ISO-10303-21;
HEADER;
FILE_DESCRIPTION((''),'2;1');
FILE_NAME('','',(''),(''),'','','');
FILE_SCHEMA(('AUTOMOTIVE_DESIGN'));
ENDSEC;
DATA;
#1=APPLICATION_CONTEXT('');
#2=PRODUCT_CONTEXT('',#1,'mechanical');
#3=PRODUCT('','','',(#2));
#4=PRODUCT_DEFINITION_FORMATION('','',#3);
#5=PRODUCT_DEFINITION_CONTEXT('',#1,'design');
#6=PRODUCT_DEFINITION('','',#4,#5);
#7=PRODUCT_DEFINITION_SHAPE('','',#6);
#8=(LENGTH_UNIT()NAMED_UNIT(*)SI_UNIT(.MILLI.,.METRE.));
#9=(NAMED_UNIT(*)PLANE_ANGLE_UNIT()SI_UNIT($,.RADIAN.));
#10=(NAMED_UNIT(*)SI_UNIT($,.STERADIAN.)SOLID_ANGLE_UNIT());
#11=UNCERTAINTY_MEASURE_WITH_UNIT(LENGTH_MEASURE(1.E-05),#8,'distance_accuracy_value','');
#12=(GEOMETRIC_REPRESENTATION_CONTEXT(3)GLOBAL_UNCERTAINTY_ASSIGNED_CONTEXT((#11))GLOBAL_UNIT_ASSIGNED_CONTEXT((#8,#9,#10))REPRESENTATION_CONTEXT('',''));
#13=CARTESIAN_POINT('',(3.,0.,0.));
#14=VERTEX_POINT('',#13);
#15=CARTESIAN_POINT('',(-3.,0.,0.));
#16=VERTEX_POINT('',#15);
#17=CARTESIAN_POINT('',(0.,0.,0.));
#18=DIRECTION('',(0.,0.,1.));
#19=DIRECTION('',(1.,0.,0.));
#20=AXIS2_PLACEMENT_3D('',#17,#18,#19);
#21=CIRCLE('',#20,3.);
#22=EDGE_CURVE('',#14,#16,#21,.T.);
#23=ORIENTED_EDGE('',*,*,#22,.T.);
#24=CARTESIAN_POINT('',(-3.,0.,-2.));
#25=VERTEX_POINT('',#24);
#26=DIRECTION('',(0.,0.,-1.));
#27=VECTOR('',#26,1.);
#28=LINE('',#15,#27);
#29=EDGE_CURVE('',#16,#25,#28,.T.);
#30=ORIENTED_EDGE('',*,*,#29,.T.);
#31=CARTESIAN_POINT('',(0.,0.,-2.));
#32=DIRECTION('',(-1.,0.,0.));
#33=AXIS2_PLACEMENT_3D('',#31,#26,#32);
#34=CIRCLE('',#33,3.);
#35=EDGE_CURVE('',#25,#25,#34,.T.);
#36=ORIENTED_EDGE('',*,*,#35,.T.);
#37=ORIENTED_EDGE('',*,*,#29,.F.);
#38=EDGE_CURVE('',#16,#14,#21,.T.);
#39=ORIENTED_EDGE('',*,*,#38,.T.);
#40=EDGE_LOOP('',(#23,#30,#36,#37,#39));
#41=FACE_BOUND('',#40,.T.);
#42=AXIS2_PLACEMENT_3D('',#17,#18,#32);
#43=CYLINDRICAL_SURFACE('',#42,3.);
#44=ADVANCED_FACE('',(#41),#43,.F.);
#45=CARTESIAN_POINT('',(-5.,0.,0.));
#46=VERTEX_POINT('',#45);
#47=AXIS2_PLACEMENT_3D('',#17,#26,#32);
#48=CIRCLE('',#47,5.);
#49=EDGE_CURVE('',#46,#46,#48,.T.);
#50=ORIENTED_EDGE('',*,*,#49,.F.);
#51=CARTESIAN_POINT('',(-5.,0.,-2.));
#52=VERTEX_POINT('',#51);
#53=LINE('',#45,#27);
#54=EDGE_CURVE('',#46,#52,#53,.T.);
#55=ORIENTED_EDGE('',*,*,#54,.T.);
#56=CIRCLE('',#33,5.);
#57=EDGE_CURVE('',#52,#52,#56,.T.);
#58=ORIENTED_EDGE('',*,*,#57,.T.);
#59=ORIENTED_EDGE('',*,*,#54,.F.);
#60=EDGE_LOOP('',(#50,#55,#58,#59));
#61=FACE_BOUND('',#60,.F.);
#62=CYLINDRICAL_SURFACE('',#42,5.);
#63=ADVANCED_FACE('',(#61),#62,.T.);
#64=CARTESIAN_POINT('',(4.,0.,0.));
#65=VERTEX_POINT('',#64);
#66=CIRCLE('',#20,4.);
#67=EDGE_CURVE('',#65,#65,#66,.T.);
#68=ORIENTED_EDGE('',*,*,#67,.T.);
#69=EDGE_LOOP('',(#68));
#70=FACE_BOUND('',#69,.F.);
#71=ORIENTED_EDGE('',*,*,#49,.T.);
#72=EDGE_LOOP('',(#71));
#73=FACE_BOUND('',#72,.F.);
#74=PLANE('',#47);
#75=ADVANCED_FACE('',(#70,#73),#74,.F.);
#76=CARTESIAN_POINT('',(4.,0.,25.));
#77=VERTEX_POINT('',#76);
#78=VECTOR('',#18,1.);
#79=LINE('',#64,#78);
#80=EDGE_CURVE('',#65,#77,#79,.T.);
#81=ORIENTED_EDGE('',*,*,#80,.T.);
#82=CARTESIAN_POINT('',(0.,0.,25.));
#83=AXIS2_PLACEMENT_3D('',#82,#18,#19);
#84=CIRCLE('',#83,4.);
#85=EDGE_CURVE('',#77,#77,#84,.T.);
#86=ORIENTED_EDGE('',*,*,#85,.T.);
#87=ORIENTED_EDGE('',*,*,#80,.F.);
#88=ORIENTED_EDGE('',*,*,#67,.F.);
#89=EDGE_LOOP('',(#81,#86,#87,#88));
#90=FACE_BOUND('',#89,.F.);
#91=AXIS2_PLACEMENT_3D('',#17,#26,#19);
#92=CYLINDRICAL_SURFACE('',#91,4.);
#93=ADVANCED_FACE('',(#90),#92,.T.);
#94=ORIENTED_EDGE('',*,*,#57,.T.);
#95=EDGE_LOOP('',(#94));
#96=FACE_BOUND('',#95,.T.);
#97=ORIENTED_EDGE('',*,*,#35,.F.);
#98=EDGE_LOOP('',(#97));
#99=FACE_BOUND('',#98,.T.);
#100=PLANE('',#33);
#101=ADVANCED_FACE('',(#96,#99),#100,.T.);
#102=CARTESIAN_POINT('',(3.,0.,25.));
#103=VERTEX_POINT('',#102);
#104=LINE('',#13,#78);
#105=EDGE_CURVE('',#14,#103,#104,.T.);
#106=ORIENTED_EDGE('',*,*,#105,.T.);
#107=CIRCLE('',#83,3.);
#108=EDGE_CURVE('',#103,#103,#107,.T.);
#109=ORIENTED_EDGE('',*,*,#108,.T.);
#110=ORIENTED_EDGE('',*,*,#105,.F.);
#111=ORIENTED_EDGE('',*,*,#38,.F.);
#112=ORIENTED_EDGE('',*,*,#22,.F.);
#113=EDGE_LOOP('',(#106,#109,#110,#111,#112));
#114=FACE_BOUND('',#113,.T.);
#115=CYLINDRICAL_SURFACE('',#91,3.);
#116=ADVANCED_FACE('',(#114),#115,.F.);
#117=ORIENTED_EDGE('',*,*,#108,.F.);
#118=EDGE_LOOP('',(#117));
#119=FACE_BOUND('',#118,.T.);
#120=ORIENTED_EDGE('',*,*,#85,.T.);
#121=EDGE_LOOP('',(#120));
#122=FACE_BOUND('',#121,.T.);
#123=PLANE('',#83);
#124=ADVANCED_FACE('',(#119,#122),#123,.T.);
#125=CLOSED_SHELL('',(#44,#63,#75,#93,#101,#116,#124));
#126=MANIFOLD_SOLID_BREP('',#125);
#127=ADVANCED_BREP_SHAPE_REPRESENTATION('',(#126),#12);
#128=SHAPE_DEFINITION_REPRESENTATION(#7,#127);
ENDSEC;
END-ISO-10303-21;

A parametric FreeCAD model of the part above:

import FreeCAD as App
import Part
import Sketcher
from FreeCAD import Vector
Q = App.Units.Quantity

doc = App.newDocument("Part")
params = doc.addObject("Spreadsheet::Sheet", "Params")
for row, (alias, value) in enumerate([
    ("sketch1_diameter", "8 mm"),
    ("sketch1_diameter2", "6 mm"),
    ("pad1_length", "25 mm"),
    ("sketch2_diameter", "10 mm"),
    ("sketch2_diameter2", "6 mm"),
    ("pad2_length", "2 mm"),
], start=1):
    params.set(f"A{row}", alias)
    params.set(f"B{row}", "=" + value)
    params.setAlias(f"B{row}", alias)

body = doc.addObject("PartDesign::Body", "Body")

sketch1 = doc.addObject("Sketcher::SketchObject", "Sketch")
body.addObject(sketch1)
sketch1.AttachmentSupport = (doc.XY_Plane, [""])
sketch1.MapMode = "FlatFace"
sketch1.addGeometry([
    Part.Circle(Vector(0, 0, 0), Vector(0, 0, 1), 4),
    Part.Circle(Vector(0, 0, 0), Vector(0, 0, 1), 3),
], False)
sketch1.addConstraint([
    Sketcher.Constraint("Coincident", 0, 3, -1, 1),
    Sketcher.Constraint("Coincident", 1, 3, -1, 1),
    Sketcher.Constraint("Diameter", 0, Q("8 mm")),
    Sketcher.Constraint("Diameter", 1, Q("6 mm")),
])
sketch1.setExpression("Constraints[2]", "Params.sketch1_diameter")
sketch1.setExpression("Constraints[3]", "Params.sketch1_diameter2")
pad1 = doc.addObject("PartDesign::Pad", "Pad")
body.addObject(pad1)
pad1.Profile = sketch1
pad1.setExpression("Length", "Params.pad1_length")

sketch2 = doc.addObject("Sketcher::SketchObject", "Sketch001")
body.addObject(sketch2)
sketch2.AttachmentSupport = (doc.XY_Plane, [""])
sketch2.MapMode = "FlatFace"
sketch2.addGeometry([
    Part.Circle(Vector(0, 0, 0), Vector(0, 0, 1), 5),
    Part.Circle(Vector(0, 0, 0), Vector(0, 0, 1), 3),
], False)
sketch2.addConstraint([
    Sketcher.Constraint("Coincident", 0, 3, -1, 1),
    Sketcher.Constraint("Coincident", 1, 3, -1, 1),
    Sketcher.Constraint("Diameter", 0, Q("10 mm")),
    Sketcher.Constraint("Diameter", 1, Q("6 mm")),
])
sketch2.setExpression("Constraints[2]", "Params.sketch2_diameter")
sketch2.setExpression("Constraints[3]", "Params.sketch2_diameter2")
pad2 = doc.addObject("PartDesign::Pad", "Pad001")
body.addObject(pad2)
pad2.Profile = sketch2
pad2.setExpression("Length", "Params.pad2_length")
pad2.Reversed = True

doc.recompute()
